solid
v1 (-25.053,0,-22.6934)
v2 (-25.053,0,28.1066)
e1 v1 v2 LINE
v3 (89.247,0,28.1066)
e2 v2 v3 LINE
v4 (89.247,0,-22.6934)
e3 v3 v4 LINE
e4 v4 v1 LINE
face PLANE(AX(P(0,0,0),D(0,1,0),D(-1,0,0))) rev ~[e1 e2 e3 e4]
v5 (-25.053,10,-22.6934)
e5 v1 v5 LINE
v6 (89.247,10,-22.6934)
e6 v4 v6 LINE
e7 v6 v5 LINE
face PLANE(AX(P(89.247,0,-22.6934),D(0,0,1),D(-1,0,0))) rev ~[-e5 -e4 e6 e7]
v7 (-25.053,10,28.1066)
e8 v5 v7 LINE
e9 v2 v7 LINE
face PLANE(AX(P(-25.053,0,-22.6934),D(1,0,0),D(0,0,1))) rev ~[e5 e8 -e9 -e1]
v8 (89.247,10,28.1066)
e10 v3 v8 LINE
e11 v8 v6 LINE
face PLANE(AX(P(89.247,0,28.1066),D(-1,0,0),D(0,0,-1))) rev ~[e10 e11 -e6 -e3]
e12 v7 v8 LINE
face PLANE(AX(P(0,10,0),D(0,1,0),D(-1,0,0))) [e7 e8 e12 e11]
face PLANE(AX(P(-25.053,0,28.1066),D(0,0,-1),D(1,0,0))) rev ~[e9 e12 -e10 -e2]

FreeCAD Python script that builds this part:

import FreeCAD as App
import Part
import Sketcher
Q = App.Units.Quantity

doc = App.newDocument("Part")
body = doc.addObject("PartDesign::Body", "Body")

sketch1 = doc.addObject("Sketcher::SketchObject", "Sketch")
body.addObject(sketch1)
sketch1.AttachmentSupport = (doc.XZ_Plane, [""])
sketch1.MapMode = "FlatFace"
sketch1.addGeometry(Part.LineSegment(App.Vector(-25.053, -22.6934, 0), App.Vector(-25.053, 28.1066, 0)), False)
sketch1.addGeometry(Part.LineSegment(App.Vector(-25.053, 28.1066, 0), App.Vector(89.247, 28.1066, 0)), False)
sketch1.addGeometry(Part.LineSegment(App.Vector(89.247, 28.1066, 0), App.Vector(89.247, -22.6934, 0)), False)
sketch1.addGeometry(Part.LineSegment(App.Vector(89.247, -22.6934, 0), App.Vector(-25.053, -22.6934, 0)), False)
sketch1.addConstraint(Sketcher.Constraint("Coincident", 0, 2, 1, 1))
sketch1.addConstraint(Sketcher.Constraint("Coincident", 1, 2, 2, 1))
sketch1.addConstraint(Sketcher.Constraint("Coincident", 2, 2, 3, 1))
sketch1.addConstraint(Sketcher.Constraint("Coincident", 3, 2, 0, 1))
sketch1.addConstraint(Sketcher.Constraint("Vertical", 0))
sketch1.addConstraint(Sketcher.Constraint("Horizontal", 1))
sketch1.addConstraint(Sketcher.Constraint("Vertical", 2))
sketch1.addConstraint(Sketcher.Constraint("Horizontal", 3))
sketch1.addConstraint(Sketcher.Constraint("DistanceY", 0, 1, 0, 2, Q("2 in")))
sketch1.addConstraint(Sketcher.Constraint("DistanceX", 1, 1, 1, 2, Q("4.5 in")))
sketch1.addConstraint(Sketcher.Constraint("DistanceX", 0, 2, -1, 1, 25.053))
sketch1.addConstraint(Sketcher.Constraint("DistanceY", -1, 1, 0, 2, 28.1066))
pad1 = doc.addObject("PartDesign::Pad", "Pad")
body.addObject(pad1)
pad1.Profile = sketch1
pad1.Length = Q("0.3937008 in")
pad1.Reversed = True

doc.recompute()
